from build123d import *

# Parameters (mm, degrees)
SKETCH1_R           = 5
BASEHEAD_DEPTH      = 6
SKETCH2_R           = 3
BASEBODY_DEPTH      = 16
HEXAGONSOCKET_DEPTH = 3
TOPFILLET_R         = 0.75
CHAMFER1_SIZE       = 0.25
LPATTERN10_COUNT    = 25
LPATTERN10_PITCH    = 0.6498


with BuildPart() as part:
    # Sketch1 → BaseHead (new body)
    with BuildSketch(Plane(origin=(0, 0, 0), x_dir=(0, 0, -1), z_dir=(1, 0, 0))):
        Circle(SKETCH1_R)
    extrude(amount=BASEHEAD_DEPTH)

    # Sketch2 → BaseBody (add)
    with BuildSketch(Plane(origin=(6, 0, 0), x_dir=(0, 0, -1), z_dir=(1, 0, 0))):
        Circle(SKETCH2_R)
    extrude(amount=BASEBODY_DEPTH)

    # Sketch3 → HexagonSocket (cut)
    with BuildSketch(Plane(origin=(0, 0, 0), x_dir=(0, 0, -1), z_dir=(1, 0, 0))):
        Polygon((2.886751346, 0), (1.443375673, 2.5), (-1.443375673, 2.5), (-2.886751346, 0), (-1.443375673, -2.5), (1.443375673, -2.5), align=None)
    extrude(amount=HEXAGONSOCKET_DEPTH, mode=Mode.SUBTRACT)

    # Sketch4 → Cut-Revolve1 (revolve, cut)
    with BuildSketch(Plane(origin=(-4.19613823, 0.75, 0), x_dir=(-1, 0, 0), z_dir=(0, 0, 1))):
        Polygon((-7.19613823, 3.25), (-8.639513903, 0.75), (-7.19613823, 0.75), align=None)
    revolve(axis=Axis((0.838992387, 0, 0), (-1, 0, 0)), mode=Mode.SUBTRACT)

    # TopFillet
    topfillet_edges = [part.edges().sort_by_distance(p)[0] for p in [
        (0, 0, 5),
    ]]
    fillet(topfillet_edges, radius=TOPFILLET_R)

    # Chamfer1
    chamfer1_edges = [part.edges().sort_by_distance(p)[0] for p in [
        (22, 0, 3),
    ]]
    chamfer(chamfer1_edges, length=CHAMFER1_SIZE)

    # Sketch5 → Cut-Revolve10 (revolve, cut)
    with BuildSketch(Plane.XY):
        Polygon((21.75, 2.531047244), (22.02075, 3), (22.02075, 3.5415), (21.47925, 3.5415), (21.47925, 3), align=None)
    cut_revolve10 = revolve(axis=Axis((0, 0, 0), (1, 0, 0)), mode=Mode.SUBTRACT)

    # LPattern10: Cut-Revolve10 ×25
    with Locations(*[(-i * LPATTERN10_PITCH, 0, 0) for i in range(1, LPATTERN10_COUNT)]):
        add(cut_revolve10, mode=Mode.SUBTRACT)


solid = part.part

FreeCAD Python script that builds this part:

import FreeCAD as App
import Part
import Sketcher
Q = App.Units.Quantity


def edges_at(feature, points):
    """Names of the edges that pass closest to the given points."""
    edges = feature.Shape.Edges
    near = lambda p: min(range(len(edges)), key=lambda i: edges[i].distToShape(Part.Vertex(*p))[0])
    return sorted({f"Edge{near(p) + 1}" for p in points})

doc = App.newDocument("Part")
params = doc.addObject("Spreadsheet::Sheet", "Params")
for row, (alias, value) in enumerate([
    ("sketch1_diameter", "10 mm"),
    ("pad1_length", "6 mm"),
    ("sketch2_diameter", "6 mm"),
    ("pad2_length", "16 mm"),
    ("pocket1_length", "3 mm"),
    ("sketch4_height", "2.5 mm"),
    ("groove_angle", "360 deg"),
    ("fillet_radius", "0.75 mm"),
    ("chamfer_size", "0.25 mm"),
    ("groove2_angle", "360 deg"),
    ("linearpattern_pitch", "0.6498 mm"),
], start=1):
    params.set(f"A{row}", alias)
    params.set(f"B{row}", "=" + value)
    params.setAlias(f"B{row}", alias)

body = doc.addObject("PartDesign::Body", "Body")

# Sketch on YZ plane
sketch1 = body.newObject("Sketcher::SketchObject", "Sketch")
sketch1.AttachmentSupport = (doc.getObject("YZ_Plane"), [""])
sketch1.MapMode = "FlatFace"
sketch1.addGeometry(Part.Circle(App.Vector(0, 0, 0), App.Vector(0, 0, 1), 5), False)
sketch1.addConstraint([
    Sketcher.Constraint("Coincident", 0, 3, -1, 1),
    Sketcher.Constraint("Diameter", 0, 10.0),
])
sketch1.setExpression("Constraints[1]", "Params.sketch1_diameter")
pad1 = body.newObject("PartDesign::Pad", "Pad")
pad1.Profile = sketch1
pad1.setExpression("Length", "Params.pad1_length")

# Sketch on YZ plane
sketch2 = body.newObject("Sketcher::SketchObject", "Sketch001")
sketch2.AttachmentSupport = (doc.getObject("YZ_Plane"), [""])
sketch2.MapMode = "FlatFace"
sketch2.AttachmentOffset = App.Placement(App.Vector(0, 0, 6), App.Rotation())
sketch2.addGeometry(Part.Circle(App.Vector(0, 0, 0), App.Vector(0, 0, 1), 3), False)
sketch2.addConstraint([
    Sketcher.Constraint("Coincident", 0, 3, -1, 1),
    Sketcher.Constraint("Diameter", 0, 6.0),
])
sketch2.setExpression("Constraints[1]", "Params.sketch2_diameter")
pad2 = body.newObject("PartDesign::Pad", "Pad001")
pad2.Profile = sketch2
pad2.setExpression("Length", "Params.pad2_length")

# Sketch on YZ plane
sketch3 = body.newObject("Sketcher::SketchObject", "Sketch002")
sketch3.AttachmentSupport = (doc.getObject("YZ_Plane"), [""])
sketch3.MapMode = "FlatFace"
sketch3.addGeometry([
    Part.LineSegment(App.Vector(0, -2.9, 0), App.Vector(2.5, -1.4, 0)),  # 0
    Part.LineSegment(App.Vector(2.5, -1.4, 0), App.Vector(2.5, 1.4, 0)),  # 1
    Part.LineSegment(App.Vector(2.5, 1.4, 0), App.Vector(0, 2.9, 0)),  # 2
    Part.LineSegment(App.Vector(0, 2.9, 0), App.Vector(-2.5, 1.4, 0)),  # 3
    Part.LineSegment(App.Vector(-2.5, 1.4, 0), App.Vector(-2.5, -1.4, 0)),  # 4
    Part.LineSegment(App.Vector(-2.5, -1.4, 0), App.Vector(0, -2.9, 0)),  # 5
], False)
sketch3.addConstraint([
    Sketcher.Constraint("Coincident", 0, 2, 1, 1),
    Sketcher.Constraint("Coincident", 1, 2, 2, 1),
    Sketcher.Constraint("Coincident", 2, 2, 3, 1),
    Sketcher.Constraint("Coincident", 3, 2, 4, 1),
    Sketcher.Constraint("Coincident", 4, 2, 5, 1),
    Sketcher.Constraint("Coincident", 5, 2, 0, 1),
    Sketcher.Constraint("Vertical", 1),
    Sketcher.Constraint("Vertical", 4),
    Sketcher.Constraint("Symmetric", 0, 2, 3, 2, -1, 1),
    Sketcher.Constraint("Symmetric", 2, 2, 5, 2, -1, 1),
    Sketcher.Constraint("PointOnObject", 2, 2, -2),
    Sketcher.Constraint("Parallel", 2, 5),
    Sketcher.Constraint("Horizontal", 1, 2, 3, 2),
    Sketcher.Constraint("Angle", 0, Q("30 deg")),
    Sketcher.Constraint("DistanceX", 3, 2, 1, 2, 5.0),
    Sketcher.Constraint("DistanceY", 1, 1, 1, 2, 2.886751),
])
pocket1 = body.newObject("PartDesign::Pocket", "Pocket")
pocket1.Profile = sketch3
pocket1.setExpression("Length", "Params.pocket1_length")
pocket1.Reversed = True

# Sketch on XY plane
sketch4 = body.newObject("Sketcher::SketchObject", "Sketch003")
sketch4.AttachmentSupport = (doc.getObject("XY_Plane"), [""])
sketch4.MapMode = "FlatFace"
sketch4.addGeometry([
    Part.LineSegment(App.Vector(3, -2.5, 0), App.Vector(4.4, 0, 0)),
    Part.LineSegment(App.Vector(4.4, 0, 0), App.Vector(3, 0, 0)),
    Part.LineSegment(App.Vector(3, 0, 0), App.Vector(3, -2.5, 0)),
], False)
sketch4.addConstraint([
    Sketcher.Constraint("Coincident", 0, 2, 1, 1),
    Sketcher.Constraint("Coincident", 1, 2, 2, 1),
    Sketcher.Constraint("Coincident", 2, 2, 0, 1),
    Sketcher.Constraint("Horizontal", 1),
    Sketcher.Constraint("Vertical", 2),
    Sketcher.Constraint("PointOnObject", 0, 2, -1),
    Sketcher.Constraint("Angle", 0, Q("60 deg")),
    Sketcher.Constraint("DistanceY", 2, 2, 2, 1, 2.5),
    Sketcher.Constraint("DistanceX", -1, 1, 1, 2, 3.0),
])
sketch4.setExpression("Constraints[7]", "Params.sketch4_height")
groove = body.newObject("PartDesign::Groove", "Groove")
groove.Profile = sketch4
groove.ReferenceAxis = (sketch4, ["H_Axis"])
groove.setExpression("Angle", "Params.groove_angle")
doc.recompute()

fillet = body.newObject("PartDesign::Fillet", "Fillet")
fillet.Base = (groove, edges_at(groove, [(0, 0, 5)]))
fillet.setExpression("Radius", "Params.fillet_radius")
doc.recompute()

chamfer = body.newObject("PartDesign::Chamfer", "Chamfer")
chamfer.Base = (fillet, edges_at(fillet, [(22, 0, 3)]))
chamfer.setExpression("Size", "Params.chamfer_size")

# Sketch on XY plane
sketch5 = body.newObject("Sketcher::SketchObject", "Sketch004")
sketch5.AttachmentSupport = (doc.getObject("XY_Plane"), [""])
sketch5.MapMode = "FlatFace"
sketch5.addGeometry([
    Part.LineSegment(App.Vector(21.8, 2.5, 0), App.Vector(22, 3, 0)),  # 0
    Part.LineSegment(App.Vector(22, 3, 0), App.Vector(22, 3.5, 0)),  # 1
    Part.LineSegment(App.Vector(22, 3.5, 0), App.Vector(21.5, 3.5, 0)),  # 2
    Part.LineSegment(App.Vector(21.5, 3.5, 0), App.Vector(21.5, 3, 0)),  # 3
    Part.LineSegment(App.Vector(21.5, 3, 0), App.Vector(21.8, 2.5, 0)),  # 4
], False)
sketch5.addConstraint([
    Sketcher.Constraint("Coincident", 0, 2, 1, 1),
    Sketcher.Constraint("Coincident", 1, 2, 2, 1),
    Sketcher.Constraint("Coincident", 2, 2, 3, 1),
    Sketcher.Constraint("Coincident", 3, 2, 4, 1),
    Sketcher.Constraint("Coincident", 4, 2, 0, 1),
    Sketcher.Constraint("Vertical", 1),
    Sketcher.Constraint("Horizontal", 2),
    Sketcher.Constraint("Vertical", 3),
    Sketcher.Constraint("Horizontal", 0, 2, 3, 2),
    Sketcher.Constraint("Equal", 2, 1),
    Sketcher.Constraint("Equal", 0, 4),
    Sketcher.Constraint("Angle", 0, Q("60 deg")),
    Sketcher.Constraint("DistanceY", -1, 1, 0, 2, 3.0),
    Sketcher.Constraint("DistanceX", -1, 1, 4, 2, 21.75),
    Sketcher.Constraint("DistanceX", 2, 2, 2, 1, 0.5415),
])
groove2 = body.newObject("PartDesign::Groove", "Groove001")
groove2.Profile = sketch5
groove2.ReferenceAxis = (sketch5, ["H_Axis"])
groove2.setExpression("Angle", "Params.groove2_angle")
doc.recompute()

linearpattern = body.newObject("PartDesign::LinearPattern", "LinearPattern")
linearpattern.Originals = [groove2]
linearpattern.Direction = (doc.getObject("X_Axis"), [""])
linearpattern.Mode = "offset"
linearpattern.setExpression("Offset", "Params.linearpattern_pitch")
linearpattern.Occurrences = 25
linearpattern.Reversed = True
body.Tip = linearpattern

doc.recompute()
